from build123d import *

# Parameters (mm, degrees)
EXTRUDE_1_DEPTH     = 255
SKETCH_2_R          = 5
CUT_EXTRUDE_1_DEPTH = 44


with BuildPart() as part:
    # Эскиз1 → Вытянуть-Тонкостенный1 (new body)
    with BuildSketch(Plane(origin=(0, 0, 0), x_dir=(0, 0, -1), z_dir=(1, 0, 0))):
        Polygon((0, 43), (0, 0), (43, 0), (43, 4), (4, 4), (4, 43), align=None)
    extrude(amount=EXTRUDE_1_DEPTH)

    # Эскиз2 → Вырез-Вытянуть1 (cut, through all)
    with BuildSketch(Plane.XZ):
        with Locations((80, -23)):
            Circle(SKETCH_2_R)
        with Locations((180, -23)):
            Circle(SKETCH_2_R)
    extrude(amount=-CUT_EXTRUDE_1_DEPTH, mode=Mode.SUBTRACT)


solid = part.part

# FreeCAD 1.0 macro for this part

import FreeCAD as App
import Part
import Sketcher

V = App.Vector


def add_polygon(sketch, points):
    """Adds a closed chain of lines whose ends are joined by coincident constraints."""
    first, n = sketch.GeometryCount, len(points)
    for a, b in zip(points, points[1:] + points[:1]):
        sketch.addGeometry(Part.LineSegment(App.Vector(*a, 0), App.Vector(*b, 0)), False)
    for i in range(n):
        sketch.addConstraint(Sketcher.Constraint("Coincident", first + i, 2, first + (i + 1) % n, 1))

doc = App.newDocument("Part")
params = doc.addObject("Spreadsheet::Sheet", "Params")
for row, (alias, value) in enumerate([
    ("sketch1_width", "43 mm"),
    ("sketch1_width2", "4 mm"),
    ("pad1_length", "255 mm"),
    ("sketch2_diameter", "10 mm"),
], start=1):
    params.set(f"A{row}", alias)
    params.set(f"B{row}", "=" + value)
    params.setAlias(f"B{row}", alias)

body = doc.addObject("PartDesign::Body", "Body")

sketch1 = doc.addObject("Sketcher::SketchObject", "Sketch")
body.addObject(sketch1)
sketch1.AttachmentSupport = (doc.YZ_Plane, [""])
sketch1.MapMode = "FlatFace"
add_polygon(sketch1, [(43, 0), (0, 0), (0, -43), (4, -43), (4, -4), (43, -4)])
sketch1.addConstraint([
    Sketcher.Constraint("Horizontal", 0),
    Sketcher.Constraint("Vertical", 1),
    Sketcher.Constraint("Horizontal", 2),
    Sketcher.Constraint("Vertical", 3),
    Sketcher.Constraint("Horizontal", 4),
    Sketcher.Constraint("Vertical", 5),
    Sketcher.Constraint("Coincident", 0, 2, -1, 1),
    Sketcher.Constraint("Equal", 0, 1),
    Sketcher.Constraint("Equal", 4, 3),
    Sketcher.Constraint("DistanceX", 0, 2, 0, 1, 43.0),
    Sketcher.Constraint("DistanceX", 2, 1, 2, 2, 4.0),
])
sketch1.setExpression("Constraints[15]", "Params.sketch1_width")
sketch1.setExpression("Constraints[16]", "Params.sketch1_width2")
pad1 = doc.addObject("PartDesign::Pad", "Pad")
body.addObject(pad1)
pad1.Profile = sketch1
pad1.setExpression("Length", "Params.pad1_length")

sketch2 = doc.addObject("Sketcher::SketchObject", "Sketch001")
body.addObject(sketch2)
sketch2.AttachmentSupport = (doc.XZ_Plane, [""])
sketch2.MapMode = "FlatFace"
sketch2.addGeometry([
    Part.Circle(V(80, -23, 0), V(0, 0, 1), 5),
    Part.Circle(V(180, -23, 0), V(0, 0, 1), 5),
], False)
sketch2.addConstraint([
    Sketcher.Constraint("Equal", 0, 1),
    Sketcher.Constraint("Horizontal", 0, 3, 1, 3),
    Sketcher.Constraint("Diameter", 0, 10.0),
    Sketcher.Constraint("DistanceX", -1, 1, 0, 3, 80.0),
    Sketcher.Constraint("DistanceY", 0, 3, -1, 1, 23.0),
    Sketcher.Constraint("DistanceX", -1, 1, 1, 3, 180.0),
])
sketch2.setExpression("Constraints[2]", "Params.sketch2_diameter")
pocket1 = doc.addObject("PartDesign::Pocket", "Pocket")
body.addObject(pocket1)
pocket1.Profile = sketch2
pocket1.Type = "ThroughAll"

doc.recompute()
